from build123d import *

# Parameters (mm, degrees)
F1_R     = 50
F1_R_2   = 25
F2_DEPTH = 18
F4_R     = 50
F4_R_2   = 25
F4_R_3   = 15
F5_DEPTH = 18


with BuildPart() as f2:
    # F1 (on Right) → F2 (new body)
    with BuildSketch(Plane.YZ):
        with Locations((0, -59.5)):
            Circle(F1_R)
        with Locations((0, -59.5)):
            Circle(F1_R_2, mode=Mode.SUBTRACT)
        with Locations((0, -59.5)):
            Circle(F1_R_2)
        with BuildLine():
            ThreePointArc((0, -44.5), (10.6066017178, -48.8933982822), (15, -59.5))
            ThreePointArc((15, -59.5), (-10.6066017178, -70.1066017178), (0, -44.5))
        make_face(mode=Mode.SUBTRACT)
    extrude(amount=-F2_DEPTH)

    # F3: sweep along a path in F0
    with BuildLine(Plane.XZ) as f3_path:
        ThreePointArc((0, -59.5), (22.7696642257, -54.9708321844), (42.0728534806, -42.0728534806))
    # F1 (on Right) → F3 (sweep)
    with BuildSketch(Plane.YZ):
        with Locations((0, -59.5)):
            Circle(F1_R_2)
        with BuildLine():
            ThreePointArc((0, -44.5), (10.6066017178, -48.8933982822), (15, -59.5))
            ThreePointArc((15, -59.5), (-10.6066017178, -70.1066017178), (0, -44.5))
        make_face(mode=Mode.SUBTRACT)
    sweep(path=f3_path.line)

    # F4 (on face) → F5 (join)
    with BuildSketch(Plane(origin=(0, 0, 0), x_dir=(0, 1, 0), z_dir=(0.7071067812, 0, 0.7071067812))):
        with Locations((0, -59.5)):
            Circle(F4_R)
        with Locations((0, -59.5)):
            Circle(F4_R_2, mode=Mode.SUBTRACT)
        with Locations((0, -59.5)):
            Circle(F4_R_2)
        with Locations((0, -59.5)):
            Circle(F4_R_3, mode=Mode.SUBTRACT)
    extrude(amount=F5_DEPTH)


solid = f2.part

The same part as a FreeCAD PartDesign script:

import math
import FreeCAD as App
import Part
import Sketcher
from FreeCAD import Vector

doc = App.newDocument("Part")
params = doc.addObject("Spreadsheet::Sheet", "Params")
for row, (alias, value) in enumerate([
    ("sketch1_diameter", "100 mm"),
    ("sketch1_diameter2", "30 mm"),
    ("pad1_length", "18 mm"),
    ("sketch2_diameter", "50 mm"),
    ("sketch2_diameter2", "30 mm"),
    ("sketch3_radius", "59.5 mm"),
    ("sketch4_diameter", "100 mm"),
    ("sketch4_diameter2", "30 mm"),
    ("pad2_length", "18 mm"),
], start=1):
    params.set(f"A{row}", alias)
    params.set(f"B{row}", "=" + value)
    params.setAlias(f"B{row}", alias)

body = doc.addObject("PartDesign::Body", "Body")

# Sketch on YZ plane
sketch1 = doc.addObject("Sketcher::SketchObject", "Sketch")
body.addObject(sketch1)
sketch1.AttachmentSupport = (doc.YZ_Plane, [""])
sketch1.MapMode = "FlatFace"
sketch1.addGeometry([
    Part.Circle(Vector(0, -60, 0), Vector(0, 0, 1), 50),
    Part.Circle(Vector(0, -60, 0), Vector(0, 0, 1), 15),
], False)
sketch1.addConstraint([
    Sketcher.Constraint("Coincident", 1, 3, 0, 3),
    Sketcher.Constraint("PointOnObject", 0, 3, -2),
    Sketcher.Constraint("Diameter", 0, 100.0),
    Sketcher.Constraint("Diameter", 1, 30.0),
    Sketcher.Constraint("DistanceY", 0, 3, -1, 1, 59.5),
])
sketch1.setExpression("Constraints[2]", "Params.sketch1_diameter")
sketch1.setExpression("Constraints[3]", "Params.sketch1_diameter2")
pad1 = doc.addObject("PartDesign::Pad", "Pad")
body.addObject(pad1)
pad1.Profile = sketch1
pad1.setExpression("Length", "Params.pad1_length")
pad1.Reversed = True

# Sketch on YZ plane
sketch2 = doc.addObject("Sketcher::SketchObject", "Sketch001")
body.addObject(sketch2)
sketch2.AttachmentSupport = (doc.YZ_Plane, [""])
sketch2.MapMode = "FlatFace"
sketch2.addGeometry([
    Part.Circle(Vector(0, -60, 0), Vector(0, 0, 1), 25),
    Part.Circle(Vector(0, -60, 0), Vector(0, 0, 1), 15),
], False)
sketch2.addConstraint([
    Sketcher.Constraint("Coincident", 1, 3, 0, 3),
    Sketcher.Constraint("PointOnObject", 0, 3, -2),
    Sketcher.Constraint("Diameter", 0, 50.0),
    Sketcher.Constraint("Diameter", 1, 30.0),
    Sketcher.Constraint("DistanceY", 0, 3, -1, 1, 59.5),
])
sketch2.setExpression("Constraints[2]", "Params.sketch2_diameter")
sketch2.setExpression("Constraints[3]", "Params.sketch2_diameter2")

# Sketch on XZ plane
sketch3 = doc.addObject("Sketcher::SketchObject", "Sketch002")
body.addObject(sketch3)
sketch3.AttachmentSupport = (doc.XZ_Plane, [""])
sketch3.MapMode = "FlatFace"
sketch3.addGeometry(Part.ArcOfCircle(Part.Circle(Vector(0, 0, 0), Vector(0, 0, 1), 60), math.radians(-90), math.radians(-45)), False)
sketch3.addConstraint([
    Sketcher.Constraint("Coincident", 0, 3, -1, 1),
    Sketcher.Constraint("PointOnObject", 0, 1, -2),
    Sketcher.Constraint("Radius", 0, 59.5),
    Sketcher.Constraint("DistanceX", -1, 1, 0, 2, 42.072853),
])
sketch3.setExpression("Constraints[2]", "Params.sketch3_radius")
doc.recompute()

additivepipe = doc.addObject("PartDesign::AdditivePipe", "AdditivePipe")
body.addObject(additivepipe)
additivepipe.Profile = sketch2
additivepipe.Spine = (sketch3, ["Edge1"])

# Sketch on an angled plane
sketch4 = doc.addObject("Sketcher::SketchObject", "Sketch003")
body.addObject(sketch4)
sketch4.Placement = App.Placement(Vector(0, 0, 0), App.Rotation(Vector(0, 1, 0), Vector(-0.707106781, 0, 0.707106781), Vector(0.707106781, 0, 0.707106781), "ZXY"))
sketch4.addGeometry([
    Part.Circle(Vector(0, -59, 0), Vector(0, 0, 1), 50),
    Part.Circle(Vector(0, -59, 0), Vector(0, 0, 1), 15),
], False)
sketch4.addConstraint([
    Sketcher.Constraint("Coincident", 1, 3, 0, 3),
    Sketcher.Constraint("PointOnObject", 0, 3, -2),
    Sketcher.Constraint("Diameter", 0, 100.0),
    Sketcher.Constraint("Diameter", 1, 30.0),
    Sketcher.Constraint("DistanceY", 0, 3, -1, 1, 59.5),
])
sketch4.setExpression("Constraints[2]", "Params.sketch4_diameter")
sketch4.setExpression("Constraints[3]", "Params.sketch4_diameter2")
pad2 = doc.addObject("PartDesign::Pad", "Pad001")
body.addObject(pad2)
pad2.Profile = sketch4
pad2.setExpression("Length", "Params.pad2_length")

doc.recompute()
